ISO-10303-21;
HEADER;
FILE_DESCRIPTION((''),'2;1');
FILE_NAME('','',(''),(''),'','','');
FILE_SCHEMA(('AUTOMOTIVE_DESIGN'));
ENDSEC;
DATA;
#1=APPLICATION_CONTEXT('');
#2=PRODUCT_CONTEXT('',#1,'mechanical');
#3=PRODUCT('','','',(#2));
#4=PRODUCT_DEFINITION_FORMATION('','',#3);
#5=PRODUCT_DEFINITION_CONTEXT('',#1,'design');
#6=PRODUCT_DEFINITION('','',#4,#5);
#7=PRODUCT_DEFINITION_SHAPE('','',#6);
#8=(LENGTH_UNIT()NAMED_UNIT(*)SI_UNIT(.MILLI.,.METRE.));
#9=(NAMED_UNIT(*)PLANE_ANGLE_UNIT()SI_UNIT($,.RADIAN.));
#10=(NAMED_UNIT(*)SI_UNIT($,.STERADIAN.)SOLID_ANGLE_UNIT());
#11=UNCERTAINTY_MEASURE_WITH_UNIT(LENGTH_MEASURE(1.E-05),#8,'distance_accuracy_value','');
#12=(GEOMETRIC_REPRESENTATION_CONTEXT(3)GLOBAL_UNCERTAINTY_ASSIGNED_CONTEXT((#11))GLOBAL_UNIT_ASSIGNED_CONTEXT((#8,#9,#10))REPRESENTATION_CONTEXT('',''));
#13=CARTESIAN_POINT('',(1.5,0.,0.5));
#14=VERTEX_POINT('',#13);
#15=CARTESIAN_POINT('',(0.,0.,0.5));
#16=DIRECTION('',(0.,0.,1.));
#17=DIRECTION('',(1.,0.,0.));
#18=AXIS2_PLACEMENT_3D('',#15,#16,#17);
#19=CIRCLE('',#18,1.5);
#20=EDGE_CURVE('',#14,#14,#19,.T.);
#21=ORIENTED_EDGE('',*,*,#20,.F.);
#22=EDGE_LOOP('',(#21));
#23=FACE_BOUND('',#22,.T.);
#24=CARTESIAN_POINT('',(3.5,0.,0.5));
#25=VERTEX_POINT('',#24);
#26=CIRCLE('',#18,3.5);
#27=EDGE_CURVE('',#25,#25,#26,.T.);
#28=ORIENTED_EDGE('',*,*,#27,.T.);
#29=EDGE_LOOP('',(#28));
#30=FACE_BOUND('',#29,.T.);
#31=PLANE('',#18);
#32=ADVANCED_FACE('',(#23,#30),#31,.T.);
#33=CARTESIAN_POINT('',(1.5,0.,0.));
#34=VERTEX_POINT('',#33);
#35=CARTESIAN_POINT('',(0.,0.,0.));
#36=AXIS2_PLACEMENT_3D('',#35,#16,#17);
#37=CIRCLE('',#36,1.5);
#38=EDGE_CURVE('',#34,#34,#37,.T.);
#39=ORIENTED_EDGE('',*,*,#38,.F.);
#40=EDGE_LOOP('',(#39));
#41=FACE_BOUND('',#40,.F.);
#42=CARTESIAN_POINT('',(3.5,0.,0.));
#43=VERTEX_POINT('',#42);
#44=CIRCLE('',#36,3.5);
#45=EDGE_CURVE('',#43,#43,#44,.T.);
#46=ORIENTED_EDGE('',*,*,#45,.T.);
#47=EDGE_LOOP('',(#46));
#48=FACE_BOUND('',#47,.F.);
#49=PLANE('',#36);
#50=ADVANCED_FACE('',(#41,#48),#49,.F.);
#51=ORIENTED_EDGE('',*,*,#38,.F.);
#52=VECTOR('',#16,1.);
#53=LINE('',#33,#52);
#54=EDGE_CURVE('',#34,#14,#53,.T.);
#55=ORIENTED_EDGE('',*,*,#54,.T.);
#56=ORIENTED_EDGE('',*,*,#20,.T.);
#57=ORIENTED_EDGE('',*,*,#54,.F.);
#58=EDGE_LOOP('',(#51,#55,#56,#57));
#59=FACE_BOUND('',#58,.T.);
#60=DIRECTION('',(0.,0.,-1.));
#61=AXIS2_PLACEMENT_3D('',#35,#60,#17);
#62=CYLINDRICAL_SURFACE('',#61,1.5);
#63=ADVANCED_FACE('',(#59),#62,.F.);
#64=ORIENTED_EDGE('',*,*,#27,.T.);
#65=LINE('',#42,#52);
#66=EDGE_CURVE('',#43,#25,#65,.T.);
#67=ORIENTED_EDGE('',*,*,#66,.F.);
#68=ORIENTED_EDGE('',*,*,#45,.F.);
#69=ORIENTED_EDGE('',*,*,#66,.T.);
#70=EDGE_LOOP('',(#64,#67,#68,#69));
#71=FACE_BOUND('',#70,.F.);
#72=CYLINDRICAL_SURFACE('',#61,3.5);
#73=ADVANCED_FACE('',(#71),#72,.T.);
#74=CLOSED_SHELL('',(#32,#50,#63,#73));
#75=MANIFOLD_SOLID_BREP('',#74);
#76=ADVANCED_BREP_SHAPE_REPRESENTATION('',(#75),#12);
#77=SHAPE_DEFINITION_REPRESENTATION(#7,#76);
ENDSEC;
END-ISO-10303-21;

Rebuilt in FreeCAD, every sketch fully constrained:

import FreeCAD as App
import Part
import Sketcher
from FreeCAD import Vector

doc = App.newDocument("Part")
body = doc.addObject("PartDesign::Body", "Body")

sketch1 = body.newObject("Sketcher::SketchObject", "Sketch")
sketch1.AttachmentSupport = (doc.getObject("XY_Plane"), [""])
sketch1.MapMode = "FlatFace"
sketch1.addGeometry([
    Part.Circle(Vector(0, 0, 0), Vector(0, 0, 1), 3.5),
    Part.Circle(Vector(0, 0, 0), Vector(0, 0, 1), 1.5),
], False)
sketch1.addConstraint([
    Sketcher.Constraint("Coincident", 0, 3, -1, 1),
    Sketcher.Constraint("Coincident", 1, 3, -1, 1),
    Sketcher.Constraint("Diameter", 0, 7.0),
    Sketcher.Constraint("Diameter", 1, 3.0),
])
pad1 = body.newObject("PartDesign::Pad", "Pad")
pad1.Profile = sketch1
pad1.Length = 0.5

doc.recompute()
